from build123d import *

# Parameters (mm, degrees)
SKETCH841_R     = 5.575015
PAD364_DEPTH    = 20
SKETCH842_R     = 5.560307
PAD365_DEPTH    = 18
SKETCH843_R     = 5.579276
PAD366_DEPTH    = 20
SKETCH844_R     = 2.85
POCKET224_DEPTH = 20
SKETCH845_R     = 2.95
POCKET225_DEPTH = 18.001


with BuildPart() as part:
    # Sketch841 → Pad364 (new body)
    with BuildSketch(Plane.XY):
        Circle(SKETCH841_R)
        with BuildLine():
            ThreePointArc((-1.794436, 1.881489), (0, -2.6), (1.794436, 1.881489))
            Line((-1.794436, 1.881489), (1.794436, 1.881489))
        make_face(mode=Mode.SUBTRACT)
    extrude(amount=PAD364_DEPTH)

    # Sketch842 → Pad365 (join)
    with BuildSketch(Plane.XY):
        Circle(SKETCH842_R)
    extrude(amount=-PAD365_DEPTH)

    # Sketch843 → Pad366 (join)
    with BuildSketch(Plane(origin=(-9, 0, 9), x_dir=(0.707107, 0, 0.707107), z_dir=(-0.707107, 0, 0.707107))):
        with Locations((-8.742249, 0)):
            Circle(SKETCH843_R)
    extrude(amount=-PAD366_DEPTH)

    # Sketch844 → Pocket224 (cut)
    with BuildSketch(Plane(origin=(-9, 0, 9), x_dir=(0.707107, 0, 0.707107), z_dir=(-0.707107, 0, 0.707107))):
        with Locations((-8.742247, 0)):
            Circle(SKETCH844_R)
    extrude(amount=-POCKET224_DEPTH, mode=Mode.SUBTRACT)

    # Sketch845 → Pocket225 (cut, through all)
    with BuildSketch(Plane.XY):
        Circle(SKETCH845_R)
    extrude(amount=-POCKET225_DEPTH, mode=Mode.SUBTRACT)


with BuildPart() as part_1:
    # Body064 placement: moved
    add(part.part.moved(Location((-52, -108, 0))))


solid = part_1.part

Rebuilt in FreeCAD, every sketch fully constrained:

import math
import FreeCAD as App
import Part
import Sketcher

V = App.Vector
Q = App.Units.Quantity

doc = App.newDocument("Part")
body = doc.addObject("PartDesign::Body", "Body")

# Sketch on XY plane
sketch1 = body.newObject("Sketcher::SketchObject", "Sketch")
sketch1.AttachmentSupport = (doc.getObject("XY_Plane"), [""])
sketch1.MapMode = "FlatFace"
sketch1.addGeometry([
    Part.Circle(V(0, 0, 0), V(0, 0, 1), 5.6),
    Part.ArcOfCircle(Part.Circle(V(0, 0, 0), V(0, 0, 1), 2.6), math.radians(134), math.radians(406)),
    Part.LineSegment(V(-1.8, 1.9, 0), V(1.8, 1.9, 0)),
], False)
sketch1.addConstraint([
    Sketcher.Constraint("Coincident", 1, 1, 2, 1),
    Sketcher.Constraint("Coincident", 2, 2, 1, 2),
    Sketcher.Constraint("Horizontal", 2),
    Sketcher.Constraint("Coincident", 0, 3, -1, 1),
    Sketcher.Constraint("Coincident", 1, 3, -1, 1),
    Sketcher.Constraint("Radius", 1, Q("2.6 mm")),
    Sketcher.Constraint("Diameter", 0, Q("11.15003 mm")),
    Sketcher.Constraint("DistanceX", 2, 1, 2, 2, Q("3.588872 mm")),
])
pad1 = body.newObject("PartDesign::Pad", "Pad")
pad1.Profile = sketch1
pad1.Length = 20

# Sketch on XY plane
sketch2 = body.newObject("Sketcher::SketchObject", "Sketch001")
sketch2.AttachmentSupport = (doc.getObject("XY_Plane"), [""])
sketch2.MapMode = "FlatFace"
sketch2.addGeometry(Part.Circle(V(0, 0, 0), V(0, 0, 1), 6), False)
sketch2.addConstraint([
    Sketcher.Constraint("Coincident", 0, 3, -1, 1),
    Sketcher.Constraint("Diameter", 0, Q("11.120614 mm")),
])
pad2 = body.newObject("PartDesign::Pad", "Pad001")
pad2.Profile = sketch2
pad2.Length = 18
pad2.Reversed = True

# Sketch on an angled plane
sketch3 = body.newObject("Sketcher::SketchObject", "Sketch002")
sketch3.Placement = App.Placement(V(-9, 0, 9), App.Rotation(V(0.707106781, 0, 0.707106781), V(0, 0.999999999, 0), V(-0.707106781, 0, 0.707106781), "ZXY"))
sketch3.addGeometry(Part.Circle(V(-9, 0, 0), V(0, 0, 1), 6), False)
sketch3.addConstraint([
    Sketcher.Constraint("PointOnObject", 0, 3, -1),
    Sketcher.Constraint("Diameter", 0, Q("11.158552 mm")),
    Sketcher.Constraint("DistanceX", 0, 3, -1, 1, Q("8.742249 mm")),
])
pad3 = body.newObject("PartDesign::Pad", "Pad002")
pad3.Profile = sketch3
pad3.Length = 20
pad3.Reversed = True

# Sketch on an angled plane
sketch4 = body.newObject("Sketcher::SketchObject", "Sketch003")
sketch4.Placement = App.Placement(V(-9, 0, 9), App.Rotation(V(0.707106781, 0, 0.707106781), V(0, 0.999999999, 0), V(-0.707106781, 0, 0.707106781), "ZXY"))
sketch4.addGeometry(Part.Circle(V(-8.7, 0, 0), V(0, 0, 1), 2.9), False)
sketch4.addConstraint([
    Sketcher.Constraint("PointOnObject", 0, 3, -1),
    Sketcher.Constraint("Diameter", 0, Q("5.7 mm")),
    Sketcher.Constraint("DistanceX", 0, 3, -1, 1, Q("8.742247 mm")),
])
pocket1 = body.newObject("PartDesign::Pocket", "Pocket")
pocket1.Profile = sketch4
pocket1.Length = 20

# Sketch on XY plane
sketch5 = body.newObject("Sketcher::SketchObject", "Sketch004")
sketch5.AttachmentSupport = (doc.getObject("XY_Plane"), [""])
sketch5.MapMode = "FlatFace"
sketch5.addGeometry(Part.Circle(V(0, 0, 0), V(0, 0, 1), 3), False)
sketch5.addConstraint([
    Sketcher.Constraint("Coincident", 0, 3, -1, 1),
    Sketcher.Constraint("Diameter", 0, Q("5.9 mm")),
])
pocket2 = body.newObject("PartDesign::Pocket", "Pocket001")
pocket2.Profile = sketch5
pocket2.Type = "ThroughAll"
body2 = doc.addObject("PartDesign::Body", "Body001")
doc.recompute()

body.Placement = App.Placement(V(-52, -108, 0), App.Rotation(V(0, 0, 1), 0))
boolean = body2.newObject("PartDesign::Boolean", "Boolean")
boolean.Type = "Fuse"
boolean.addObjects([body])

doc.recompute()
